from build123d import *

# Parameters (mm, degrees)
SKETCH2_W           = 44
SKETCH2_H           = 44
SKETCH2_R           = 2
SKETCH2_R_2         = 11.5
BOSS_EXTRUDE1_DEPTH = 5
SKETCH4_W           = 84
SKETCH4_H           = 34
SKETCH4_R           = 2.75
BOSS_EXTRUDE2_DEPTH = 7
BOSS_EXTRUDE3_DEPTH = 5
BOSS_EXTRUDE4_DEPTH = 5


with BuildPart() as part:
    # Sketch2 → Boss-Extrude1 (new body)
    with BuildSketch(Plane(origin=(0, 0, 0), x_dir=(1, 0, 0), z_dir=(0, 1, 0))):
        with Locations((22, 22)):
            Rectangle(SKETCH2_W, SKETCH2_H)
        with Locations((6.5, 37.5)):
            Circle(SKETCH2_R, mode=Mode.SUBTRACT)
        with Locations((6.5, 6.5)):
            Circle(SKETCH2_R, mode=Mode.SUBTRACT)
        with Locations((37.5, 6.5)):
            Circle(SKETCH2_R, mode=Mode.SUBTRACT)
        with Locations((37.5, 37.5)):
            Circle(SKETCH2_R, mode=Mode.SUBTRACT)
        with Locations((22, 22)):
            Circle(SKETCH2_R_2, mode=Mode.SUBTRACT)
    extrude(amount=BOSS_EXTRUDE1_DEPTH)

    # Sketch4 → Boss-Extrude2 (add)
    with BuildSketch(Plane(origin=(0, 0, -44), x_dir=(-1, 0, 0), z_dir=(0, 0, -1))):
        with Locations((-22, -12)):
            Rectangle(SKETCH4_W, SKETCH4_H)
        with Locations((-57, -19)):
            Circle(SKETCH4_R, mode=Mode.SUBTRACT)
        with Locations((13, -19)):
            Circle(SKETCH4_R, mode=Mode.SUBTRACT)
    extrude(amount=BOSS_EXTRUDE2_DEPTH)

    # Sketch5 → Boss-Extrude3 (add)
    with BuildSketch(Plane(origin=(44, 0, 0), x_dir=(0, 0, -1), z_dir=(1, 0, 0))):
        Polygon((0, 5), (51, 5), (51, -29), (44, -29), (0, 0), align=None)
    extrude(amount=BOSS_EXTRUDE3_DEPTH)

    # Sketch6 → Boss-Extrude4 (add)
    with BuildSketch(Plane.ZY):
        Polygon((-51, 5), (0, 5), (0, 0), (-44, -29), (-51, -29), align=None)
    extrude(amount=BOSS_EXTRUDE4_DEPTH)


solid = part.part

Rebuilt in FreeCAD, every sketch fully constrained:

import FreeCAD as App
import Part
import Sketcher

V = App.Vector
Q = App.Units.Quantity

doc = App.newDocument("Part")
body = doc.addObject("PartDesign::Body", "Body")

# Sketch on XZ plane
sketch1 = body.newObject("Sketcher::SketchObject", "Sketch")
sketch1.AttachmentSupport = (doc.getObject("XZ_Plane"), [""])
sketch1.MapMode = "FlatFace"
sketch1.addGeometry(Part.LineSegment(V(0, -44, 0), V(0, 0, 0)), False)
sketch1.addGeometry(Part.LineSegment(V(0, 0, 0), V(44, 0, 0)), False)
sketch1.addGeometry(Part.LineSegment(V(44, 0, 0), V(44, -44, 0)), False)
sketch1.addGeometry(Part.LineSegment(V(44, -44, 0), V(0, -44, 0)), False)
sketch1.addGeometry(Part.Circle(V(6.5, -6.5, 0), V(0, 0, 1), 2), False)
sketch1.addGeometry(Part.Circle(V(37.5, -6.5, 0), V(0, 0, 1), 2), False)
sketch1.addGeometry(Part.Circle(V(6.5, -37.5, 0), V(0, 0, 1), 2), False)
sketch1.addGeometry(Part.Circle(V(22, -22, 0), V(0, 0, 1), 11.5), False)
sketch1.addGeometry(Part.Circle(V(37.5, -37.5, 0), V(0, 0, 1), 2), False)
sketch1.addConstraint(Sketcher.Constraint("Coincident", 0, 2, 1, 1))
sketch1.addConstraint(Sketcher.Constraint("Coincident", 1, 2, 2, 1))
sketch1.addConstraint(Sketcher.Constraint("Coincident", 2, 2, 3, 1))
sketch1.addConstraint(Sketcher.Constraint("Coincident", 3, 2, 0, 1))
sketch1.addConstraint(Sketcher.Constraint("Vertical", 0))
sketch1.addConstraint(Sketcher.Constraint("Horizontal", 1))
sketch1.addConstraint(Sketcher.Constraint("Vertical", 2))
sketch1.addConstraint(Sketcher.Constraint("Horizontal", 3))
sketch1.addConstraint(Sketcher.Constraint("Coincident", 0, 2, -1, 1))
sketch1.addConstraint(Sketcher.Constraint("Equal", 4, 5))
sketch1.addConstraint(Sketcher.Constraint("Equal", 5, 6))
sketch1.addConstraint(Sketcher.Constraint("Equal", 6, 8))
sketch1.addConstraint(Sketcher.Constraint("Horizontal", 4, 3, 5, 3))
sketch1.addConstraint(Sketcher.Constraint("Horizontal", 6, 3, 8, 3))
sketch1.addConstraint(Sketcher.Constraint("Vertical", 4, 3, 6, 3))
sketch1.addConstraint(Sketcher.Constraint("Vertical", 5, 3, 8, 3))
sketch1.addConstraint(Sketcher.Constraint("Equal", 3, 0))
sketch1.addConstraint(Sketcher.Constraint("Diameter", 4, Q("4 mm")))
sketch1.addConstraint(Sketcher.Constraint("Diameter", 7, Q("23 mm")))
sketch1.addConstraint(Sketcher.Constraint("DistanceX", 1, 1, 1, 2, Q("44 mm")))
sketch1.addConstraint(Sketcher.Constraint("DistanceX", -1, 1, 7, 3, Q("22 mm")))
sketch1.addConstraint(Sketcher.Constraint("DistanceY", 7, 3, -1, 1, Q("22 mm")))
sketch1.addConstraint(Sketcher.Constraint("DistanceX", 4, 3, 5, 3, Q("31 mm")))
sketch1.addConstraint(Sketcher.Constraint("DistanceY", 6, 3, 4, 3, Q("31 mm")))
sketch1.addConstraint(Sketcher.Constraint("DistanceX", -1, 1, 4, 3, Q("6.5 mm")))
sketch1.addConstraint(Sketcher.Constraint("DistanceY", 4, 3, -1, 1, Q("6.5 mm")))
pad1 = body.newObject("PartDesign::Pad", "Pad")
pad1.Profile = sketch1
pad1.Length = 5
pad1.Reversed = True

# Sketch on XY plane
sketch2 = body.newObject("Sketcher::SketchObject", "Sketch001")
sketch2.AttachmentSupport = (doc.getObject("XY_Plane"), [""])
sketch2.MapMode = "FlatFace"
sketch2.AttachmentOffset = App.Placement(V(0, 0, -44), App.Rotation())
sketch2.addGeometry(Part.LineSegment(V(64, 5, 0), V(64, -29, 0)), False)
sketch2.addGeometry(Part.LineSegment(V(64, -29, 0), V(-20, -29, 0)), False)
sketch2.addGeometry(Part.LineSegment(V(-20, -29, 0), V(-20, 5, 0)), False)
sketch2.addGeometry(Part.LineSegment(V(-20, 5, 0), V(64, 5, 0)), False)
sketch2.addGeometry(Part.Circle(V(57, -19, 0), V(0, 0, 1), 2.8), False)
sketch2.addGeometry(Part.Circle(V(-13, -19, 0), V(0, 0, 1), 2.8), False)
sketch2.addConstraint(Sketcher.Constraint("Coincident", 0, 2, 1, 1))
sketch2.addConstraint(Sketcher.Constraint("Coincident", 1, 2, 2, 1))
sketch2.addConstraint(Sketcher.Constraint("Coincident", 2, 2, 3, 1))
sketch2.addConstraint(Sketcher.Constraint("Coincident", 3, 2, 0, 1))
sketch2.addConstraint(Sketcher.Constraint("Vertical", 0))
sketch2.addConstraint(Sketcher.Constraint("Horizontal", 1))
sketch2.addConstraint(Sketcher.Constraint("Vertical", 2))
sketch2.addConstraint(Sketcher.Constraint("Horizontal", 3))
sketch2.addConstraint(Sketcher.Constraint("Equal", 4, 5))
sketch2.addConstraint(Sketcher.Constraint("Horizontal", 4, 3, 5, 3))
sketch2.addConstraint(Sketcher.Constraint("Diameter", 4, Q("5.5 mm")))
sketch2.addConstraint(Sketcher.Constraint("DistanceX", 1, 2, 1, 1, Q("84 mm")))
sketch2.addConstraint(Sketcher.Constraint("DistanceY", 0, 2, 0, 1, Q("34 mm")))
sketch2.addConstraint(Sketcher.Constraint("DistanceX", -1, 1, 4, 3, Q("57 mm")))
sketch2.addConstraint(Sketcher.Constraint("DistanceY", 4, 3, -1, 1, Q("19 mm")))
sketch2.addConstraint(Sketcher.Constraint("DistanceX", 5, 3, -1, 1, Q("13 mm")))
sketch2.addConstraint(Sketcher.Constraint("DistanceX", -1, 1, 0, 2, Q("64 mm")))
sketch2.addConstraint(Sketcher.Constraint("DistanceY", 0, 2, -1, 1, Q("29 mm")))
pad2 = body.newObject("PartDesign::Pad", "Pad001")
pad2.Profile = sketch2
pad2.Length = 7
pad2.Reversed = True

# Sketch on YZ plane
sketch3 = body.newObject("Sketcher::SketchObject", "Sketch002")
sketch3.AttachmentSupport = (doc.getObject("YZ_Plane"), [""])
sketch3.MapMode = "FlatFace"
sketch3.AttachmentOffset = App.Placement(V(0, 0, 44), App.Rotation())
sketch3.addGeometry(Part.LineSegment(V(5, -51, 0), V(5, 0, 0)), False)
sketch3.addGeometry(Part.LineSegment(V(5, 0, 0), V(0, 0, 0)), False)
sketch3.addGeometry(Part.LineSegment(V(0, 0, 0), V(-29, -44, 0)), False)
sketch3.addGeometry(Part.LineSegment(V(-29, -44, 0), V(-29, -51, 0)), False)
sketch3.addGeometry(Part.LineSegment(V(-29, -51, 0), V(5, -51, 0)), False)
sketch3.addConstraint(Sketcher.Constraint("Coincident", 0, 2, 1, 1))
sketch3.addConstraint(Sketcher.Constraint("Coincident", 1, 2, 2, 1))
sketch3.addConstraint(Sketcher.Constraint("Coincident", 2, 2, 3, 1))
sketch3.addConstraint(Sketcher.Constraint("Coincident", 3, 2, 4, 1))
sketch3.addConstraint(Sketcher.Constraint("Coincident", 4, 2, 0, 1))
sketch3.addConstraint(Sketcher.Constraint("Vertical", 0))
sketch3.addConstraint(Sketcher.Constraint("Horizontal", 1))
sketch3.addConstraint(Sketcher.Constraint("Vertical", 3))
sketch3.addConstraint(Sketcher.Constraint("Horizontal", 4))
sketch3.addConstraint(Sketcher.Constraint("Coincident", 1, 2, -1, 1))
sketch3.addConstraint(Sketcher.Constraint("DistanceX", 1, 2, 1, 1, Q("5 mm")))
sketch3.addConstraint(Sketcher.Constraint("DistanceX", 4, 1, 4, 2, Q("34 mm")))
sketch3.addConstraint(Sketcher.Constraint("DistanceY", 0, 1, 0, 2, Q("51 mm")))
sketch3.addConstraint(Sketcher.Constraint("DistanceY", 3, 2, 3, 1, Q("7 mm")))
pad3 = body.newObject("PartDesign::Pad", "Pad002")
pad3.Profile = sketch3
pad3.Length = 5

# Sketch on YZ plane
sketch4 = body.newObject("Sketcher::SketchObject", "Sketch003")
sketch4.AttachmentSupport = (doc.getObject("YZ_Plane"), [""])
sketch4.MapMode = "FlatFace"
sketch4.addGeometry(Part.LineSegment(V(5, 0, 0), V(5, -51, 0)), False)
sketch4.addGeometry(Part.LineSegment(V(5, -51, 0), V(-29, -51, 0)), False)
sketch4.addGeometry(Part.LineSegment(V(-29, -51, 0), V(-29, -44, 0)), False)
sketch4.addGeometry(Part.LineSegment(V(-29, -44, 0), V(0, 0, 0)), False)
sketch4.addGeometry(Part.LineSegment(V(0, 0, 0), V(5, 0, 0)), False)
sketch4.addConstraint(Sketcher.Constraint("Coincident", 0, 2, 1, 1))
sketch4.addConstraint(Sketcher.Constraint("Coincident", 1, 2, 2, 1))
sketch4.addConstraint(Sketcher.Constraint("Coincident", 2, 2, 3, 1))
sketch4.addConstraint(Sketcher.Constraint("Coincident", 3, 2, 4, 1))
sketch4.addConstraint(Sketcher.Constraint("Coincident", 4, 2, 0, 1))
sketch4.addConstraint(Sketcher.Constraint("Vertical", 0))
sketch4.addConstraint(Sketcher.Constraint("Horizontal", 1))
sketch4.addConstraint(Sketcher.Constraint("Vertical", 2))
sketch4.addConstraint(Sketcher.Constraint("Horizontal", 4))
sketch4.addConstraint(Sketcher.Constraint("Coincident", 3, 2, -1, 1))
sketch4.addConstraint(Sketcher.Constraint("DistanceX", 1, 2, 1, 1, Q("34 mm")))
sketch4.addConstraint(Sketcher.Constraint("DistanceX", 4, 1, 4, 2, Q("5 mm")))
sketch4.addConstraint(Sketcher.Constraint("DistanceY", 0, 2, 0, 1, Q("51 mm")))
sketch4.addConstraint(Sketcher.Constraint("DistanceY", 2, 1, 2, 2, Q("7 mm")))
pad4 = body.newObject("PartDesign::Pad", "Pad003")
pad4.Profile = sketch4
pad4.Length = 5
pad4.Reversed = True

doc.recompute()
